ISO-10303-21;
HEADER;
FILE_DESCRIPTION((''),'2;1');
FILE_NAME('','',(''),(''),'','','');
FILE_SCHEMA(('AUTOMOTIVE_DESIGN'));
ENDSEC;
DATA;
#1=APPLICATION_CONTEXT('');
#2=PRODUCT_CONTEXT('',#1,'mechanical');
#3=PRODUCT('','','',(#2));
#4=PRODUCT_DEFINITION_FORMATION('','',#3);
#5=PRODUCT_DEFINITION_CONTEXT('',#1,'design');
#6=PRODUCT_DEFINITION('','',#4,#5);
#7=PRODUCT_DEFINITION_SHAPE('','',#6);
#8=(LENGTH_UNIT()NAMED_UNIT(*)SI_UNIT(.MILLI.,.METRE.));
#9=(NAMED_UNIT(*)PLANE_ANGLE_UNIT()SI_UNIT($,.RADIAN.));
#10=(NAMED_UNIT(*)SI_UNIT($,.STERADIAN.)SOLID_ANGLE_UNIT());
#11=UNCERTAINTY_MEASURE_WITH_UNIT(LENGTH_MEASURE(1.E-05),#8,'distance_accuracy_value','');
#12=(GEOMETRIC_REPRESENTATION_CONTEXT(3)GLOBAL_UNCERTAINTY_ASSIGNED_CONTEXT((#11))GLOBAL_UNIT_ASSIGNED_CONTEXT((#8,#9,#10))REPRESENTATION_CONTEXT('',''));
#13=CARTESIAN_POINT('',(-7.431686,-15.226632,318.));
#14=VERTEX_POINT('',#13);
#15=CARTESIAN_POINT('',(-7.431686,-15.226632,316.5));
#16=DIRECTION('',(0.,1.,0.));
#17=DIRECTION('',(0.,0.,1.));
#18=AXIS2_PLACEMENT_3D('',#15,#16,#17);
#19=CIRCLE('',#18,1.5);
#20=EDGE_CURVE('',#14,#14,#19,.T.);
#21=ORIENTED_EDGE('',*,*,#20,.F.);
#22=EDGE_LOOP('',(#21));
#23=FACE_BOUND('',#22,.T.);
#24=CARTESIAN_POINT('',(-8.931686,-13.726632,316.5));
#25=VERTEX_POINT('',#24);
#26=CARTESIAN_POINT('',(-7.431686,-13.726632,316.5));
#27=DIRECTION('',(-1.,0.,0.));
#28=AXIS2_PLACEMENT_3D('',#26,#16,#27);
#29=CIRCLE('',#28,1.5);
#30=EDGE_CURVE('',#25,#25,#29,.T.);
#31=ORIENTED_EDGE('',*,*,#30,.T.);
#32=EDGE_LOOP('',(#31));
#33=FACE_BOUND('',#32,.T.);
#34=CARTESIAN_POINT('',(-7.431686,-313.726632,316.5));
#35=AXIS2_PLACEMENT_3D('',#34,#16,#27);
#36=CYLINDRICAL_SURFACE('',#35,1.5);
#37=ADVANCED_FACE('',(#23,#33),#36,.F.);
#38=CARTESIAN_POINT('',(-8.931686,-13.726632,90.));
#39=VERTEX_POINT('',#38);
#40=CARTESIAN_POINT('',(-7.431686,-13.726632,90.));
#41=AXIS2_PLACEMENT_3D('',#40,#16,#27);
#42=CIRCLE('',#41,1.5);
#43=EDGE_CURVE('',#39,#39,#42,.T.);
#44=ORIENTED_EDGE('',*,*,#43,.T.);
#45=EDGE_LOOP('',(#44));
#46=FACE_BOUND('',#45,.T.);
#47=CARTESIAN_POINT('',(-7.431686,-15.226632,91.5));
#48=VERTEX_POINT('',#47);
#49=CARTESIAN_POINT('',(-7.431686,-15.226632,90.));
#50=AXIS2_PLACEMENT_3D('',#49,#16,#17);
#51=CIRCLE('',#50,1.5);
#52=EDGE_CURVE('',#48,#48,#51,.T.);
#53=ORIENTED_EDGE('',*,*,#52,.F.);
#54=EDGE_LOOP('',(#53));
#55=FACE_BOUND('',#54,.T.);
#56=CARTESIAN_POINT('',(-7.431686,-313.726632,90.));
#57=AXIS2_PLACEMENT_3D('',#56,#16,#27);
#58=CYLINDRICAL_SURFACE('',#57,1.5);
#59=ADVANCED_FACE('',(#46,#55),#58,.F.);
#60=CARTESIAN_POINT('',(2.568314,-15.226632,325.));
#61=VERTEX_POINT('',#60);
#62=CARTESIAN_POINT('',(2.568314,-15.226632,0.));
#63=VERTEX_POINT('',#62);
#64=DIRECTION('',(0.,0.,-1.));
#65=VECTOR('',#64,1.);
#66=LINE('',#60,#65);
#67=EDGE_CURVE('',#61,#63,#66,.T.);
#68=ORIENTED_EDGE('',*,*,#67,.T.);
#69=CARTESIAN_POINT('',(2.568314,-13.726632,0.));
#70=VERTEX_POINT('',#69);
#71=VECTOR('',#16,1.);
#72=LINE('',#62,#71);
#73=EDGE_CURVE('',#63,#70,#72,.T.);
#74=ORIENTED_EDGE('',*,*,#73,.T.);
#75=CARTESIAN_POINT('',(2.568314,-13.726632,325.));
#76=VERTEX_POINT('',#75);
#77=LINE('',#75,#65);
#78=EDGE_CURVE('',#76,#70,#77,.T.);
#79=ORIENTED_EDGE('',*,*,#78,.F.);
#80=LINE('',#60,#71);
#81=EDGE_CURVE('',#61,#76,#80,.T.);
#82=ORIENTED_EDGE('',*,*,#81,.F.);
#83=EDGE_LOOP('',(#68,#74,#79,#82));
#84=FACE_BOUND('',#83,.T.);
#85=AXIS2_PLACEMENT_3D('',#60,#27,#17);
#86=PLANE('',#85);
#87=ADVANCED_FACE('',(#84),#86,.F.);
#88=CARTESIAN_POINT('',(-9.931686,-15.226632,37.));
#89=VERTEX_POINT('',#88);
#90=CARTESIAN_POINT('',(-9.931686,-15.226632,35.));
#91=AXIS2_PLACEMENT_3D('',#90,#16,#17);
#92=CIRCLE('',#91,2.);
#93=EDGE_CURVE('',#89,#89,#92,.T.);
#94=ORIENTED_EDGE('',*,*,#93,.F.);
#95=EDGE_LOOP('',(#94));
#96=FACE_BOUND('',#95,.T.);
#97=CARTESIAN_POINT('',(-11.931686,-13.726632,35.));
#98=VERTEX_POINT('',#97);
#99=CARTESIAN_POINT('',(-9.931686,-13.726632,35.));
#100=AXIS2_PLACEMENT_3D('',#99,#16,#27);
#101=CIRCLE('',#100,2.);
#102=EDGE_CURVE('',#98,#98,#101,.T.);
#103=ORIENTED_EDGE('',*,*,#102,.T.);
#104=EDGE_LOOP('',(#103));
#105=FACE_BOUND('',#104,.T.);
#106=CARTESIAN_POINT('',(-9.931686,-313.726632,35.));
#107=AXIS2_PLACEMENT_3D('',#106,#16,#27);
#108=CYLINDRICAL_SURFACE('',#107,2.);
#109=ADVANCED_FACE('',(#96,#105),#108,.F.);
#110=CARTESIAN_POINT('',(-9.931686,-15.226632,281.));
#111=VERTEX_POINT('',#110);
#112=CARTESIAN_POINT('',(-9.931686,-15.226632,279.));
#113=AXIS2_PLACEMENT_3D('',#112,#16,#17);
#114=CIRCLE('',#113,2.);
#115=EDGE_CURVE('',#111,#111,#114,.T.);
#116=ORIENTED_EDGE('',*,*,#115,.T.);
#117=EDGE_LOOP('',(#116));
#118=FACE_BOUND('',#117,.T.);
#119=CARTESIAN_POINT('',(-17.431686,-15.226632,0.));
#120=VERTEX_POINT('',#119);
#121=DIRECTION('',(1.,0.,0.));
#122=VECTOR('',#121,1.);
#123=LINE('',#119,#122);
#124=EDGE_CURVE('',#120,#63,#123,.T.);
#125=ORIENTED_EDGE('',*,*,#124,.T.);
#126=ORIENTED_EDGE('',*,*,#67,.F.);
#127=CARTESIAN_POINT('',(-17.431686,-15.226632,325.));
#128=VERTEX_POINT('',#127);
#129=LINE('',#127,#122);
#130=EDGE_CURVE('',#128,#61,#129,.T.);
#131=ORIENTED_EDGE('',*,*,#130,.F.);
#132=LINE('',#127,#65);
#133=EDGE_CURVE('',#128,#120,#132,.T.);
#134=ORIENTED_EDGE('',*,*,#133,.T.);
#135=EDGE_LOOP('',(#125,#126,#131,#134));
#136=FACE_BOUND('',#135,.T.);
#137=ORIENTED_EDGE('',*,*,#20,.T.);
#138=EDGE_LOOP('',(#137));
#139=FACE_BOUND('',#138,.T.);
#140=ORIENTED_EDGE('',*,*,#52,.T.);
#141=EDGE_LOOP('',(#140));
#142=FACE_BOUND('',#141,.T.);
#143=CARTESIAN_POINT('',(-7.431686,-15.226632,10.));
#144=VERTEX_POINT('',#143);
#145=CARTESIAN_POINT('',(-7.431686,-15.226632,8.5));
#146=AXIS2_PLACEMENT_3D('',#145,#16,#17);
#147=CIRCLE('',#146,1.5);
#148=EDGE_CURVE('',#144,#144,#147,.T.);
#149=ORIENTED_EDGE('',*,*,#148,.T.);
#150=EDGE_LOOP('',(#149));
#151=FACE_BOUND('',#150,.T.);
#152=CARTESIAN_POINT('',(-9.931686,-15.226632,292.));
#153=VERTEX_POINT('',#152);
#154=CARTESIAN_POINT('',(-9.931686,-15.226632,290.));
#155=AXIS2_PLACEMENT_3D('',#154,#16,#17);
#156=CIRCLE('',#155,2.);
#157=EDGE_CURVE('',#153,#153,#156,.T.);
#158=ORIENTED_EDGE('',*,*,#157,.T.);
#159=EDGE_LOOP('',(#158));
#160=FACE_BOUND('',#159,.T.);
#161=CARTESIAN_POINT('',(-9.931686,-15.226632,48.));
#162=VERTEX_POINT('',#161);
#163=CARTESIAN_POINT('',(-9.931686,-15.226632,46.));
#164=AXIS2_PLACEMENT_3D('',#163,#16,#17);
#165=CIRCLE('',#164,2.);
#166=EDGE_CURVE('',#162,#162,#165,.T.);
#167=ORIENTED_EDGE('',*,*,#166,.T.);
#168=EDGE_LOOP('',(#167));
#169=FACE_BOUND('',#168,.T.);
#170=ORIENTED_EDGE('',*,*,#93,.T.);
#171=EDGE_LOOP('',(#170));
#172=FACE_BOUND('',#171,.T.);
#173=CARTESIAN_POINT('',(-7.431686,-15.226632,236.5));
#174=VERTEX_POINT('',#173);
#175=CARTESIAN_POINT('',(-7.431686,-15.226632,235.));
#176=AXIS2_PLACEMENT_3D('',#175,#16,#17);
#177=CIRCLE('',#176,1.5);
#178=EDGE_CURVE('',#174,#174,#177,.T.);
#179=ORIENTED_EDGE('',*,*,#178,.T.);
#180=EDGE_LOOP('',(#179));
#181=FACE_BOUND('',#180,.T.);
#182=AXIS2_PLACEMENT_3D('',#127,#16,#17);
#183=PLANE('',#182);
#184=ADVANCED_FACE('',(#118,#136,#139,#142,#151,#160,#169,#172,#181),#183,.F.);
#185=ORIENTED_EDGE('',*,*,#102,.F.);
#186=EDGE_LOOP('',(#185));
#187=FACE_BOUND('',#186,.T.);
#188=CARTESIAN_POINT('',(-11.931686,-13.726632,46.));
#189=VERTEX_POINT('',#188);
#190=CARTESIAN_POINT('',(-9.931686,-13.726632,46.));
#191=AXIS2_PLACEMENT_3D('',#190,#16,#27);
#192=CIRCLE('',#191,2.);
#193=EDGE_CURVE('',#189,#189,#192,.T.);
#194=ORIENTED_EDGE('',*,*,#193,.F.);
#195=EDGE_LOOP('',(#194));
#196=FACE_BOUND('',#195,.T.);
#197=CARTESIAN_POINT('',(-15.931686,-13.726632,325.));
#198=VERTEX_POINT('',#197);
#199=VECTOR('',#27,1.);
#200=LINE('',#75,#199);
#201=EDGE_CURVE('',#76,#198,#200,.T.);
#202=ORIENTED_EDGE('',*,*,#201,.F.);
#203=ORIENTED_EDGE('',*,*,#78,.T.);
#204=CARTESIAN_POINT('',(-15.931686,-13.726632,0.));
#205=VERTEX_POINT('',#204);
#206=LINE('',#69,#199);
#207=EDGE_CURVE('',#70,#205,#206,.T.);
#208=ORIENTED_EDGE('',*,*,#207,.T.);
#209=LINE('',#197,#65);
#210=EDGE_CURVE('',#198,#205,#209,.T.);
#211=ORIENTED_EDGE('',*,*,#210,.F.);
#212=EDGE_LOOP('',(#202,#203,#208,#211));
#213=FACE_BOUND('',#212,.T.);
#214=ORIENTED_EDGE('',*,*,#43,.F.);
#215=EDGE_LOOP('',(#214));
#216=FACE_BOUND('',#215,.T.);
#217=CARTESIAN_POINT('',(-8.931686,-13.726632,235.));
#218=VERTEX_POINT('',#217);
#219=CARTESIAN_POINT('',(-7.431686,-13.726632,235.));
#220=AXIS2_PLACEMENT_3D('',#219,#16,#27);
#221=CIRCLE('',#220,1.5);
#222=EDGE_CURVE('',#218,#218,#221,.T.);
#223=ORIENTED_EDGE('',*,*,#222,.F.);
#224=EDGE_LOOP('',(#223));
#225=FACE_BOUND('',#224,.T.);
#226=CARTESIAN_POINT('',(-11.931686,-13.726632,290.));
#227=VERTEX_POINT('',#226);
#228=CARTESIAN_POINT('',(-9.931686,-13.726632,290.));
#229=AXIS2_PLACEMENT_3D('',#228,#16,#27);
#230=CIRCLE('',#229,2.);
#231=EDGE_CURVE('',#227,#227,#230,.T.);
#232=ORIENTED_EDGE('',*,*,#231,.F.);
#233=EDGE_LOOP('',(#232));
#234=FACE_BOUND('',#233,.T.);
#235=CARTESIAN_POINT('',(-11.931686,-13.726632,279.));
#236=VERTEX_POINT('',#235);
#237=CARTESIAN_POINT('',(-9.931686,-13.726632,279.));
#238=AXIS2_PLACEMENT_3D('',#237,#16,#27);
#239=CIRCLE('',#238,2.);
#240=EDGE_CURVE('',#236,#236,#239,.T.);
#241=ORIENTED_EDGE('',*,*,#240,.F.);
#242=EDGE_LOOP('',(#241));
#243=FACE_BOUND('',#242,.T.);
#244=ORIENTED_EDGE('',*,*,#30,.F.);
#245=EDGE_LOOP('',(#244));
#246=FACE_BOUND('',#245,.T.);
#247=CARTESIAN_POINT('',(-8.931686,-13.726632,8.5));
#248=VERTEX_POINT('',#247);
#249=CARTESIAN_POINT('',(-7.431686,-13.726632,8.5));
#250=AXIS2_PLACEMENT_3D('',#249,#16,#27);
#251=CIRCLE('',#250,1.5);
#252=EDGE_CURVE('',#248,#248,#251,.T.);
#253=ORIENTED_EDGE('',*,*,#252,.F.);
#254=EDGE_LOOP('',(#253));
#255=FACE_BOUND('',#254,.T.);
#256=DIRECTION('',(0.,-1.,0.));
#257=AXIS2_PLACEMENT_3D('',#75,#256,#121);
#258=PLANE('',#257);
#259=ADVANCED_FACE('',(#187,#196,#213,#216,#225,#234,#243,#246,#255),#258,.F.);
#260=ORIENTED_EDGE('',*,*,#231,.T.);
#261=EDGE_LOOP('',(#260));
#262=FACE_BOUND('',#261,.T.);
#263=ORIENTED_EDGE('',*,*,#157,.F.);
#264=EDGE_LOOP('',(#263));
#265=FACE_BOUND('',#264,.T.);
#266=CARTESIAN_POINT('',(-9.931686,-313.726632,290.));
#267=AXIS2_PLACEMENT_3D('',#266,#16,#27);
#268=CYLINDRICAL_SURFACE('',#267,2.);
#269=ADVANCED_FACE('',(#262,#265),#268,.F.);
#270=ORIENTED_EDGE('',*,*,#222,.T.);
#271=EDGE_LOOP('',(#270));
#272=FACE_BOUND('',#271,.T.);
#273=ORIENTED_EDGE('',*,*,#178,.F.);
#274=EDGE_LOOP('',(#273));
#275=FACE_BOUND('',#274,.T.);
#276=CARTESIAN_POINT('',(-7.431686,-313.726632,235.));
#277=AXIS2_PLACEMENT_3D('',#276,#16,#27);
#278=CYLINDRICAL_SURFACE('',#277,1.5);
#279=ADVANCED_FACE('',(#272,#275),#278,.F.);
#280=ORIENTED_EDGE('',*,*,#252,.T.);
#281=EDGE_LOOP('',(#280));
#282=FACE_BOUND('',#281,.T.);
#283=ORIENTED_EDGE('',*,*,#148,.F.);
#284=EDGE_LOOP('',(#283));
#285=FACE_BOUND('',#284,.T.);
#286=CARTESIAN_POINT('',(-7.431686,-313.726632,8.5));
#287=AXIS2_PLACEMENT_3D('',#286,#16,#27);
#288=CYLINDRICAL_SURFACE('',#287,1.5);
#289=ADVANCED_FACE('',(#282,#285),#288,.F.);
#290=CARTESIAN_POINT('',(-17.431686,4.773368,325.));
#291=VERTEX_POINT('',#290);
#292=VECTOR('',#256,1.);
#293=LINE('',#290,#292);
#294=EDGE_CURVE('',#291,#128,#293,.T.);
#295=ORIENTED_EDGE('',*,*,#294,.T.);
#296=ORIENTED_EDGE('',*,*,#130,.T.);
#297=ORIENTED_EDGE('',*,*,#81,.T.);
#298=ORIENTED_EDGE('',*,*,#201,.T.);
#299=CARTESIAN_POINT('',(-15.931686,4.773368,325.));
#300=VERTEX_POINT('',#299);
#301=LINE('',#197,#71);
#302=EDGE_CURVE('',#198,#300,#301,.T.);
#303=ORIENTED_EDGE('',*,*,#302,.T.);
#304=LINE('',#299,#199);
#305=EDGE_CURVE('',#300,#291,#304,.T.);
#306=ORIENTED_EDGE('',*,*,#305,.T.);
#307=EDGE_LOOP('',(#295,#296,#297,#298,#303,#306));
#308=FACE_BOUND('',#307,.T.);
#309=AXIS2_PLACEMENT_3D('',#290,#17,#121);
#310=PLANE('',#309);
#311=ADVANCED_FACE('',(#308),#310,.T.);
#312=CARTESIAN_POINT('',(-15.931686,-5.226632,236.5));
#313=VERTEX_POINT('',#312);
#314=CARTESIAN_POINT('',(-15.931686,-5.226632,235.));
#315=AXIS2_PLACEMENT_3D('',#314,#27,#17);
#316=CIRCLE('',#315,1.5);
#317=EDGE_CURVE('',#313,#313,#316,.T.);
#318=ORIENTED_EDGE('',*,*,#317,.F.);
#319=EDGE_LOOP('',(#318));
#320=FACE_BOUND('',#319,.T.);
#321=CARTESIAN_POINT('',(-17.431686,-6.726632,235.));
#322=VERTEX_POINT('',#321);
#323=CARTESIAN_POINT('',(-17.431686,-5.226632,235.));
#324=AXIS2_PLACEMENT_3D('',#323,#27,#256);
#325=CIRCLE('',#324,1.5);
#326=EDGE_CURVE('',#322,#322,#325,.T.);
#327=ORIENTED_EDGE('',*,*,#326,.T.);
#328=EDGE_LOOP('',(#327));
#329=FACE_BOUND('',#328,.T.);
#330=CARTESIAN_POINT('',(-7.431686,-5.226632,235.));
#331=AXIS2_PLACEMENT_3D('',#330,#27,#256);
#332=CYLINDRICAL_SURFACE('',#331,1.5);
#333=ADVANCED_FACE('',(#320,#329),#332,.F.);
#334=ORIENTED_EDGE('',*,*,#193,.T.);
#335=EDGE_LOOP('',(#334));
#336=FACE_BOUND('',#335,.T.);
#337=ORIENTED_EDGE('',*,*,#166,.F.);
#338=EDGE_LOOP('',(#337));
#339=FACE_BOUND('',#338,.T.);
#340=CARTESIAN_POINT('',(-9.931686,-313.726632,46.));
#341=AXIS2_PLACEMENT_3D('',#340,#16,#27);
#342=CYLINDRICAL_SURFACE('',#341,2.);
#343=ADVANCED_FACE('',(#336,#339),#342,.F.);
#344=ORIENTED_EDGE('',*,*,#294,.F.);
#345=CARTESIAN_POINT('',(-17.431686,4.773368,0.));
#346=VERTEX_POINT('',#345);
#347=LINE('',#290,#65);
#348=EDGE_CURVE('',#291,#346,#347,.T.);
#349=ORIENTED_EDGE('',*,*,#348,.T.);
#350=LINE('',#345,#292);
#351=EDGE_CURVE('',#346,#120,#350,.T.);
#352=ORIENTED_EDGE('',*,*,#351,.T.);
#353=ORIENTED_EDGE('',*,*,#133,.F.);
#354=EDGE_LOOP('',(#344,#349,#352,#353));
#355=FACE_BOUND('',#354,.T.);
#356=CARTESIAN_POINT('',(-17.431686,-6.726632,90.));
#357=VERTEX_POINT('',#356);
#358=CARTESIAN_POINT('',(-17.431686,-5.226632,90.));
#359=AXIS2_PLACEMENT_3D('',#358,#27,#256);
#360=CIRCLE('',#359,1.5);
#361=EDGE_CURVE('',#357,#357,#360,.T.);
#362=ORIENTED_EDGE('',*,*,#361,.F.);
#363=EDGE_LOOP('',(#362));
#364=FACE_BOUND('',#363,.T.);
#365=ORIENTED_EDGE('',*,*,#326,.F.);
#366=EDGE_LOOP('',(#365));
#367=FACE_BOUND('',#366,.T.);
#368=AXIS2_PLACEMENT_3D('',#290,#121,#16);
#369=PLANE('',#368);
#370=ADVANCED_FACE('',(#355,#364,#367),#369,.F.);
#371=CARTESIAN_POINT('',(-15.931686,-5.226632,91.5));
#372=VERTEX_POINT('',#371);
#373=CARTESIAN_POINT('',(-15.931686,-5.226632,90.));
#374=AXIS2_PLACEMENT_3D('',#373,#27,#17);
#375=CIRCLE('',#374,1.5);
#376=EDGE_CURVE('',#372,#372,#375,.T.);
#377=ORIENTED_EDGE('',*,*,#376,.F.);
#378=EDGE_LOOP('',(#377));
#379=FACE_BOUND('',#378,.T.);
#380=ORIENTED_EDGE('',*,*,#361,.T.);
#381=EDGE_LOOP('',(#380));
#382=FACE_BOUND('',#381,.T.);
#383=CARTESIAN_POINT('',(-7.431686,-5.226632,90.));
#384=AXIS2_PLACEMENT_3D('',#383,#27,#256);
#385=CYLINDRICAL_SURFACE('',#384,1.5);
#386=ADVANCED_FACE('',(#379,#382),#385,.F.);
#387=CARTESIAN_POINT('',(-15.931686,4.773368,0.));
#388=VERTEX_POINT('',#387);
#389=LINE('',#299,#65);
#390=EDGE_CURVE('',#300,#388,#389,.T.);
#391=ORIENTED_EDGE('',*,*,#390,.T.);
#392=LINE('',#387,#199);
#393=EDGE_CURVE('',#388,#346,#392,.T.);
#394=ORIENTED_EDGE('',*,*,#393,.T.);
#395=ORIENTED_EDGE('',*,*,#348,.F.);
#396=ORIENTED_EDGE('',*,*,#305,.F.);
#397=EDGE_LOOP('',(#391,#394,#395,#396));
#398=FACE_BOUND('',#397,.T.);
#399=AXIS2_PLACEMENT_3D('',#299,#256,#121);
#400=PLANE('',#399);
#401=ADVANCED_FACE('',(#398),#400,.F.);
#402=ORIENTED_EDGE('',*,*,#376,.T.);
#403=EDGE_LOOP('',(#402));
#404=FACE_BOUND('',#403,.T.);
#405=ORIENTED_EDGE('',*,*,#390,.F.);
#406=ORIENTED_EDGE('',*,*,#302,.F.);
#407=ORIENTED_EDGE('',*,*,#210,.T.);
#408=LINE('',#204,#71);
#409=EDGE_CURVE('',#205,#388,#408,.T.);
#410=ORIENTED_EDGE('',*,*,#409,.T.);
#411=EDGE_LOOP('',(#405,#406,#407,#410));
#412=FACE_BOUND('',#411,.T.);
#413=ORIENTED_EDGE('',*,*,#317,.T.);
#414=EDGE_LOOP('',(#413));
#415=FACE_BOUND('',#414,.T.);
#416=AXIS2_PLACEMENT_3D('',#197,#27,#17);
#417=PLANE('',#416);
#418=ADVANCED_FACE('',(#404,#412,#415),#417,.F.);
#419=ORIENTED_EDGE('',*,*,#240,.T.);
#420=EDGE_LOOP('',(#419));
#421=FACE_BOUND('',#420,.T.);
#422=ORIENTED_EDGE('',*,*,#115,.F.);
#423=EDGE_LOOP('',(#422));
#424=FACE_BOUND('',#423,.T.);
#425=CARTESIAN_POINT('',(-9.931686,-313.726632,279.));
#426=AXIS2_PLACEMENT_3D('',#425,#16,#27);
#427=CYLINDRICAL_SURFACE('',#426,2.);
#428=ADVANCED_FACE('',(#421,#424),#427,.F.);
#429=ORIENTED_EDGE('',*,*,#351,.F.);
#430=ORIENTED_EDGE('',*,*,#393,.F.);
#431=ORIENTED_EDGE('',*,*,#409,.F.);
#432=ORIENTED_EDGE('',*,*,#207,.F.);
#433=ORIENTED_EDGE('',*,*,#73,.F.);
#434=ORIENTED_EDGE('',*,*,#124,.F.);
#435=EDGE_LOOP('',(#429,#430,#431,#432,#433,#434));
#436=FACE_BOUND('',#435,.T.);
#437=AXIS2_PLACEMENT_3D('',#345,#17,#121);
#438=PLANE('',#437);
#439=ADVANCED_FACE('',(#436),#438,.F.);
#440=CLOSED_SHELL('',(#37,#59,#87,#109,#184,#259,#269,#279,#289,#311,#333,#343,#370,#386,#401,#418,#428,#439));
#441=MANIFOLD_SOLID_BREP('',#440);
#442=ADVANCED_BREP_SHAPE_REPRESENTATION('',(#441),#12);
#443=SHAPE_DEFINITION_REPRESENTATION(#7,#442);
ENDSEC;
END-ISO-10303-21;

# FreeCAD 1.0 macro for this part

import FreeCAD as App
import Part
import Sketcher
from FreeCAD import Vector

doc = App.newDocument("Part")
body = doc.addObject("PartDesign::Body", "Body")

# Sketch on XY plane
sketch1 = doc.addObject("Sketcher::SketchObject", "Sketch")
body.addObject(sketch1)
sketch1.AttachmentSupport = (doc.XY_Plane, [""])
sketch1.MapMode = "FlatFace"
sketch1.addGeometry([
    Part.LineSegment(Vector(-17.4, 4.8, 0), Vector(-17.4, -15.2, 0)),  # 0
    Part.LineSegment(Vector(-17.4, -15.2, 0), Vector(2.6, -15.2, 0)),  # 1
    Part.LineSegment(Vector(2.6, -15.2, 0), Vector(2.6, -13.7, 0)),  # 2
    Part.LineSegment(Vector(2.6, -13.7, 0), Vector(-15.9, -13.7, 0)),  # 3
    Part.LineSegment(Vector(-15.9, -13.7, 0), Vector(-15.9, 4.8, 0)),  # 4
    Part.LineSegment(Vector(-15.9, 4.8, 0), Vector(-17.4, 4.8, 0)),  # 5
], False)
sketch1.addConstraint([
    Sketcher.Constraint("Coincident", 0, 2, 1, 1),
    Sketcher.Constraint("Coincident", 1, 2, 2, 1),
    Sketcher.Constraint("Coincident", 2, 2, 3, 1),
    Sketcher.Constraint("Coincident", 3, 2, 4, 1),
    Sketcher.Constraint("Coincident", 4, 2, 5, 1),
    Sketcher.Constraint("Coincident", 5, 2, 0, 1),
    Sketcher.Constraint("Vertical", 0),
    Sketcher.Constraint("Horizontal", 1),
    Sketcher.Constraint("Vertical", 2),
    Sketcher.Constraint("Horizontal", 3),
    Sketcher.Constraint("Vertical", 4),
    Sketcher.Constraint("Horizontal", 5),
    Sketcher.Constraint("Equal", 1, 0),
    Sketcher.Constraint("Equal", 5, 2),
    Sketcher.Constraint("DistanceX", 1, 1, 1, 2, 20.0),
    Sketcher.Constraint("DistanceX", 3, 2, 3, 1, 18.5),
    Sketcher.Constraint("DistanceY", 0, 2, -1, 1, 15.226632),
    Sketcher.Constraint("DistanceX", 0, 2, -1, 1, 17.431686),
])
pad1 = doc.addObject("PartDesign::Pad", "Pad")
body.addObject(pad1)
pad1.Profile = sketch1
pad1.Length = 325

# Sketch on XZ plane
sketch2 = doc.addObject("Sketcher::SketchObject", "Sketch001")
body.addObject(sketch2)
sketch2.AttachmentSupport = (doc.XZ_Plane, [""])
sketch2.MapMode = "FlatFace"
sketch2.AttachmentOffset = App.Placement(Vector(0, 0, 13.726632), App.Rotation())
sketch2.addGeometry([
    Part.Circle(Vector(-7.4, 8.5, 0), Vector(0, 0, 1), 1.5),  # 0
    Part.Circle(Vector(-7.4, 316.5, 0), Vector(0, 0, 1), 1.5),  # 1
    Part.Circle(Vector(-9.9, 35, 0), Vector(0, 0, 1), 2),  # 2
    Part.Circle(Vector(-9.9, 46, 0), Vector(0, 0, 1), 2),  # 3
    Part.Circle(Vector(-9.9, 290, 0), Vector(0, 0, 1), 2),  # 4
    Part.Circle(Vector(-9.9, 279, 0), Vector(0, 0, 1), 2),  # 5
    Part.Circle(Vector(-7.4, 235, 0), Vector(0, 0, 1), 1.5),  # 6
    Part.Circle(Vector(-7.4, 90, 0), Vector(0, 0, 1), 1.5),  # 7
], False)
sketch2.addConstraint([
    Sketcher.Constraint("Equal", 0, 1),
    Sketcher.Constraint("Equal", 2, 3),
    Sketcher.Constraint("Equal", 3, 4),
    Sketcher.Constraint("Equal", 4, 5),
    Sketcher.Constraint("Equal", 1, 6),
    Sketcher.Constraint("Equal", 6, 7),
    Sketcher.Constraint("Vertical", 0, 3, 1, 3),
    Sketcher.Constraint("Vertical", 2, 3, 3, 3),
    Sketcher.Constraint("Vertical", 3, 3, 4, 3),
    Sketcher.Constraint("Vertical", 4, 3, 5, 3),
    Sketcher.Constraint("Vertical", 1, 3, 6, 3),
    Sketcher.Constraint("Vertical", 6, 3, 7, 3),
    Sketcher.Constraint("Diameter", 0, 3.0),
    Sketcher.Constraint("Diameter", 2, 4.0),
    Sketcher.Constraint("DistanceY", -1, 1, 2, 3, 35.0),
    Sketcher.Constraint("DistanceY", -1, 1, 3, 3, 46.0),
    Sketcher.Constraint("DistanceY", -1, 1, 4, 3, 290.0),
    Sketcher.Constraint("DistanceY", -1, 1, 5, 3, 279.0),
    Sketcher.Constraint("DistanceY", -1, 1, 6, 3, 235.0),
    Sketcher.Constraint("DistanceY", -1, 1, 7, 3, 90.0),
    Sketcher.Constraint("DistanceY", 0, 3, 1, 3, 308.0),
    Sketcher.Constraint("DistanceY", -1, 1, 0, 3, 8.5),
    Sketcher.Constraint("DistanceX", 2, 3, 0, 3, 2.5),
    Sketcher.Constraint("DistanceX", 0, 3, -1, 1, 7.431686),
])
pocket1 = doc.addObject("PartDesign::Pocket", "Pocket")
body.addObject(pocket1)
pocket1.Profile = sketch2
pocket1.Length = 300
pocket1.Reversed = True

# Sketch on YZ plane
sketch3 = doc.addObject("Sketcher::SketchObject", "Sketch002")
body.addObject(sketch3)
sketch3.AttachmentSupport = (doc.YZ_Plane, [""])
sketch3.MapMode = "FlatFace"
sketch3.AttachmentOffset = App.Placement(Vector(0, 0, -17.431686), App.Rotation())
sketch3.addGeometry([
    Part.Circle(Vector(-5.2, 235, 0), Vector(0, 0, 1), 1.5),
    Part.Circle(Vector(-5.2, 90, 0), Vector(0, 0, 1), 1.5),
], False)
sketch3.addConstraint([
    Sketcher.Constraint("Equal", 0, 1),
    Sketcher.Constraint("Vertical", 0, 3, 1, 3),
    Sketcher.Constraint("Diameter", 0, 3.0),
    Sketcher.Constraint("DistanceY", -1, 1, 0, 3, 235.0),
    Sketcher.Constraint("DistanceY", -1, 1, 1, 3, 90.0),
    Sketcher.Constraint("DistanceX", 0, 3, -1, 1, 5.226632),
])
pocket2 = doc.addObject("PartDesign::Pocket", "Pocket001")
body.addObject(pocket2)
pocket2.Profile = sketch3
pocket2.Length = 10
pocket2.Reversed = True

doc.recompute()
